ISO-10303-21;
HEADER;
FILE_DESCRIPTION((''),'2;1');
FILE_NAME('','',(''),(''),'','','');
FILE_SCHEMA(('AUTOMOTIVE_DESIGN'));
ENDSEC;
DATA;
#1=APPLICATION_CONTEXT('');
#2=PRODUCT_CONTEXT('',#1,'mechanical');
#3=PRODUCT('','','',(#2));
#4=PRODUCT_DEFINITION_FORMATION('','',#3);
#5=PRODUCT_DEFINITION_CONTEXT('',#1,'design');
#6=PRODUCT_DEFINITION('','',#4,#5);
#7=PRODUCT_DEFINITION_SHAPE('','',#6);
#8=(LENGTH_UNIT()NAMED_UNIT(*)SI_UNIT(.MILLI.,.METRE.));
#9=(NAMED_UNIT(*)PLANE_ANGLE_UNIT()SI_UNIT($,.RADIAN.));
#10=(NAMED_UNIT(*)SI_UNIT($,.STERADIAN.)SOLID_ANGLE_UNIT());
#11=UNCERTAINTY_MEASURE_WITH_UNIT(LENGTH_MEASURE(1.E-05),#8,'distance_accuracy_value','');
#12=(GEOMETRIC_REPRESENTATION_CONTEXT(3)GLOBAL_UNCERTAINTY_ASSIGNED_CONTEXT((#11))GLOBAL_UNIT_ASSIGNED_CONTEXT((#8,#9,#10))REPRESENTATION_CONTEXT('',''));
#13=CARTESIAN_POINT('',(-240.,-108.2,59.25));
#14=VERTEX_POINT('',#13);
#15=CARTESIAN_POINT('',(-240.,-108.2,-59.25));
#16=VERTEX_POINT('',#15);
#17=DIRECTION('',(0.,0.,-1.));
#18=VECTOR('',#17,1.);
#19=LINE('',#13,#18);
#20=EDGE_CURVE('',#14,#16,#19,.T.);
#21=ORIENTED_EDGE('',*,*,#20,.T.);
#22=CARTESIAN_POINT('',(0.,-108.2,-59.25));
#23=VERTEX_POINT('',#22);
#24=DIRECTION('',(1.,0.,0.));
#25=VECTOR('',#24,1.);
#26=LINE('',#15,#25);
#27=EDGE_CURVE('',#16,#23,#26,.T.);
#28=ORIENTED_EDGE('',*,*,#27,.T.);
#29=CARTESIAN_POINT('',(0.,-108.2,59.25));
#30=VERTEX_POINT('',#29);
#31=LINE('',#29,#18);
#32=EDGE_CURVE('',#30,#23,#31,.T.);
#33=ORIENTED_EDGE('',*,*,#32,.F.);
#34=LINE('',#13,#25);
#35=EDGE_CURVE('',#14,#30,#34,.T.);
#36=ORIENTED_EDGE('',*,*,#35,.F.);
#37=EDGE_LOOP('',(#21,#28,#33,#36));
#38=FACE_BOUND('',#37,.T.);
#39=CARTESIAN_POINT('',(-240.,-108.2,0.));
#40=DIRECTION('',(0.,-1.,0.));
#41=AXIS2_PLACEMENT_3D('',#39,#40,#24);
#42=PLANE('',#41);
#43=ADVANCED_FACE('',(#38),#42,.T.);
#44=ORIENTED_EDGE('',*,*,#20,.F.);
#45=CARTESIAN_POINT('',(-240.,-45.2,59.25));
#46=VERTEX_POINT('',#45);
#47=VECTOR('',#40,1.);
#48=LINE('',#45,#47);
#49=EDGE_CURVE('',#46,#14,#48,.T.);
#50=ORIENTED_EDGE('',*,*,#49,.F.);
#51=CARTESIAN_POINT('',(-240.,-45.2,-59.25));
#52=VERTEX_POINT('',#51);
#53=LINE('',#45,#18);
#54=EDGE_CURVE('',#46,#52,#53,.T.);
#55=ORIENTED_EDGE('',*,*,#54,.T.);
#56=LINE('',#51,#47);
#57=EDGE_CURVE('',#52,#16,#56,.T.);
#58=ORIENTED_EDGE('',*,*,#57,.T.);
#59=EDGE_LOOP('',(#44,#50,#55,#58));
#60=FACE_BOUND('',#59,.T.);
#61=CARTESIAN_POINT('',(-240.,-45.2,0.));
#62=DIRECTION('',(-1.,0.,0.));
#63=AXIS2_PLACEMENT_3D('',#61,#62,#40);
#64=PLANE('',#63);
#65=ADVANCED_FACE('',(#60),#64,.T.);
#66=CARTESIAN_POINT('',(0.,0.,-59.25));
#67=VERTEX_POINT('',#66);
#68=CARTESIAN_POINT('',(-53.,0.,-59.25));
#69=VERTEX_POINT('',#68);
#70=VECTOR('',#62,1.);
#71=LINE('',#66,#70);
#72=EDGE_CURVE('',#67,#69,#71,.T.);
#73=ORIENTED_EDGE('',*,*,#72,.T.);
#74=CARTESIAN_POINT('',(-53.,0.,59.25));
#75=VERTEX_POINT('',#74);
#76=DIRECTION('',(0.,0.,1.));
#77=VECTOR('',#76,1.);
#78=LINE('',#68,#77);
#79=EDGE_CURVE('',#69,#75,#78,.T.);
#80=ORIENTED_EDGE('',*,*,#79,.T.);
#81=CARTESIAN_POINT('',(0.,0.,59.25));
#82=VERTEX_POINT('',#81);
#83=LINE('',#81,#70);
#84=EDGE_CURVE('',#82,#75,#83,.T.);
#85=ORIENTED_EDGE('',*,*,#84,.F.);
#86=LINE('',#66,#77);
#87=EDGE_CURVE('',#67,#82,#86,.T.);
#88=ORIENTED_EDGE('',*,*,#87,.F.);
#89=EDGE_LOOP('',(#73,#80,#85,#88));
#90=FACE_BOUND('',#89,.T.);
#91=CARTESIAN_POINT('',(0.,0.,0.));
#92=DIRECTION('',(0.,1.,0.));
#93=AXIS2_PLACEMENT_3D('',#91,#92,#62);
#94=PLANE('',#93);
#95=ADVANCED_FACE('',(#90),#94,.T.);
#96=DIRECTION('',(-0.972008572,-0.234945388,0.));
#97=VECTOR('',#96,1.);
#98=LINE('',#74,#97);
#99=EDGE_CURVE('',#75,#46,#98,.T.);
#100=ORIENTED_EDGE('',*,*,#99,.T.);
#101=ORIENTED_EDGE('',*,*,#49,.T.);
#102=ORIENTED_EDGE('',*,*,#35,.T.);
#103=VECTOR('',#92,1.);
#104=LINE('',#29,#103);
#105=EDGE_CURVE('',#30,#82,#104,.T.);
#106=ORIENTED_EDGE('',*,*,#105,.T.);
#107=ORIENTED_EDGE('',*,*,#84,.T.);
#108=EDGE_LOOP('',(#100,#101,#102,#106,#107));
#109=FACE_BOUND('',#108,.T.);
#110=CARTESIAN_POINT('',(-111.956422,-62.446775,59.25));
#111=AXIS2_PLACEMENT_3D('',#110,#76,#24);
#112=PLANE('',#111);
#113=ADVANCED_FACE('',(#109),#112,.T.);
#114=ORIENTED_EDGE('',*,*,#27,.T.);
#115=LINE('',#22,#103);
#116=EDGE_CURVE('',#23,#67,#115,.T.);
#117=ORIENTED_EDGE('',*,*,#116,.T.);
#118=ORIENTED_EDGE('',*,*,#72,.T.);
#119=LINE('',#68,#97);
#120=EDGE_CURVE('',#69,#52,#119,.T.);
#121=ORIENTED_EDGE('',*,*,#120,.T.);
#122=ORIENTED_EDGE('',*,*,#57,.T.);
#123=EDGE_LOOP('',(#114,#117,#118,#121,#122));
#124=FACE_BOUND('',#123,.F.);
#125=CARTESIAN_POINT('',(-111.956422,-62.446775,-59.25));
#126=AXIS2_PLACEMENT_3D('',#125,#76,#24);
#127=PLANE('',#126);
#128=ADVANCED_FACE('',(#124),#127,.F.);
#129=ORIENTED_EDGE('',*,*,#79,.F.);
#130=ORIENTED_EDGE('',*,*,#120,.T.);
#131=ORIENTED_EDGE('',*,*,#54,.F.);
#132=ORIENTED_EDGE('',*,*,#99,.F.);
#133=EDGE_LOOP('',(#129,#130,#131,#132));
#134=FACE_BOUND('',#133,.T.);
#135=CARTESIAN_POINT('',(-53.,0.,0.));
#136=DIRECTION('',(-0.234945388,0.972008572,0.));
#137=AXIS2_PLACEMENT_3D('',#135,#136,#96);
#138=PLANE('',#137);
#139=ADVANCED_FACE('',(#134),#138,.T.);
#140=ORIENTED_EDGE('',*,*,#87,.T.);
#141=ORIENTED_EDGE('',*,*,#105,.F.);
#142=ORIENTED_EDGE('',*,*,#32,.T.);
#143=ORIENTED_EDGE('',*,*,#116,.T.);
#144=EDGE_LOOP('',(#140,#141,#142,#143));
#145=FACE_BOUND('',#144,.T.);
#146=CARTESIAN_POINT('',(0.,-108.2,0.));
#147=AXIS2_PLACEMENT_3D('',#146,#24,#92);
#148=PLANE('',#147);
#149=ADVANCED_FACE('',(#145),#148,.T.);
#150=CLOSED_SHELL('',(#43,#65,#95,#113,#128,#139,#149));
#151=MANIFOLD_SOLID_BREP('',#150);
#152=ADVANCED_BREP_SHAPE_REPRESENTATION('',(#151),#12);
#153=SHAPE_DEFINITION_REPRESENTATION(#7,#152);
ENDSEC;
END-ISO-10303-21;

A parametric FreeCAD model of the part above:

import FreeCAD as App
import Part
import Sketcher
from FreeCAD import Vector

doc = App.newDocument("Part")
body = doc.addObject("PartDesign::Body", "Body")

sketch1 = doc.addObject("Sketcher::SketchObject", "Sketch")
body.addObject(sketch1)
sketch1.AttachmentSupport = (doc.XY_Plane, [""])
sketch1.MapMode = "FlatFace"
sketch1.addGeometry([
    Part.LineSegment(Vector(0, -108.2, 0), Vector(0, 0, 0)),
    Part.LineSegment(Vector(0, 0, 0), Vector(-53, 0, 0)),
    Part.LineSegment(Vector(-53, 0, 0), Vector(-240, -45.2, 0)),
    Part.LineSegment(Vector(-240, -45.2, 0), Vector(-240, -108.2, 0)),
    Part.LineSegment(Vector(-240, -108.2, 0), Vector(0, -108.2, 0)),
], False)
sketch1.addConstraint([
    Sketcher.Constraint("Coincident", 0, 2, 1, 1),
    Sketcher.Constraint("Coincident", 1, 2, 2, 1),
    Sketcher.Constraint("Coincident", 2, 2, 3, 1),
    Sketcher.Constraint("Coincident", 3, 2, 4, 1),
    Sketcher.Constraint("Coincident", 4, 2, 0, 1),
    Sketcher.Constraint("Vertical", 0),
    Sketcher.Constraint("Horizontal", 1),
    Sketcher.Constraint("Vertical", 3),
    Sketcher.Constraint("Horizontal", 4),
    Sketcher.Constraint("Coincident", 0, 2, -1, 1),
    Sketcher.Constraint("DistanceX", 1, 2, 1, 1, 53.0),
    Sketcher.Constraint("DistanceX", 4, 1, 4, 2, 240.0),
    Sketcher.Constraint("DistanceY", 3, 2, 3, 1, 63.0),
    Sketcher.Constraint("DistanceY", 0, 1, 0, 2, 108.2),
])
pad1 = doc.addObject("PartDesign::Pad", "Pad")
body.addObject(pad1)
pad1.Profile = sketch1
pad1.Type = "TwoLengths"
pad1.Length = 59.25
pad1.Length2 = 59.25

doc.recompute()
